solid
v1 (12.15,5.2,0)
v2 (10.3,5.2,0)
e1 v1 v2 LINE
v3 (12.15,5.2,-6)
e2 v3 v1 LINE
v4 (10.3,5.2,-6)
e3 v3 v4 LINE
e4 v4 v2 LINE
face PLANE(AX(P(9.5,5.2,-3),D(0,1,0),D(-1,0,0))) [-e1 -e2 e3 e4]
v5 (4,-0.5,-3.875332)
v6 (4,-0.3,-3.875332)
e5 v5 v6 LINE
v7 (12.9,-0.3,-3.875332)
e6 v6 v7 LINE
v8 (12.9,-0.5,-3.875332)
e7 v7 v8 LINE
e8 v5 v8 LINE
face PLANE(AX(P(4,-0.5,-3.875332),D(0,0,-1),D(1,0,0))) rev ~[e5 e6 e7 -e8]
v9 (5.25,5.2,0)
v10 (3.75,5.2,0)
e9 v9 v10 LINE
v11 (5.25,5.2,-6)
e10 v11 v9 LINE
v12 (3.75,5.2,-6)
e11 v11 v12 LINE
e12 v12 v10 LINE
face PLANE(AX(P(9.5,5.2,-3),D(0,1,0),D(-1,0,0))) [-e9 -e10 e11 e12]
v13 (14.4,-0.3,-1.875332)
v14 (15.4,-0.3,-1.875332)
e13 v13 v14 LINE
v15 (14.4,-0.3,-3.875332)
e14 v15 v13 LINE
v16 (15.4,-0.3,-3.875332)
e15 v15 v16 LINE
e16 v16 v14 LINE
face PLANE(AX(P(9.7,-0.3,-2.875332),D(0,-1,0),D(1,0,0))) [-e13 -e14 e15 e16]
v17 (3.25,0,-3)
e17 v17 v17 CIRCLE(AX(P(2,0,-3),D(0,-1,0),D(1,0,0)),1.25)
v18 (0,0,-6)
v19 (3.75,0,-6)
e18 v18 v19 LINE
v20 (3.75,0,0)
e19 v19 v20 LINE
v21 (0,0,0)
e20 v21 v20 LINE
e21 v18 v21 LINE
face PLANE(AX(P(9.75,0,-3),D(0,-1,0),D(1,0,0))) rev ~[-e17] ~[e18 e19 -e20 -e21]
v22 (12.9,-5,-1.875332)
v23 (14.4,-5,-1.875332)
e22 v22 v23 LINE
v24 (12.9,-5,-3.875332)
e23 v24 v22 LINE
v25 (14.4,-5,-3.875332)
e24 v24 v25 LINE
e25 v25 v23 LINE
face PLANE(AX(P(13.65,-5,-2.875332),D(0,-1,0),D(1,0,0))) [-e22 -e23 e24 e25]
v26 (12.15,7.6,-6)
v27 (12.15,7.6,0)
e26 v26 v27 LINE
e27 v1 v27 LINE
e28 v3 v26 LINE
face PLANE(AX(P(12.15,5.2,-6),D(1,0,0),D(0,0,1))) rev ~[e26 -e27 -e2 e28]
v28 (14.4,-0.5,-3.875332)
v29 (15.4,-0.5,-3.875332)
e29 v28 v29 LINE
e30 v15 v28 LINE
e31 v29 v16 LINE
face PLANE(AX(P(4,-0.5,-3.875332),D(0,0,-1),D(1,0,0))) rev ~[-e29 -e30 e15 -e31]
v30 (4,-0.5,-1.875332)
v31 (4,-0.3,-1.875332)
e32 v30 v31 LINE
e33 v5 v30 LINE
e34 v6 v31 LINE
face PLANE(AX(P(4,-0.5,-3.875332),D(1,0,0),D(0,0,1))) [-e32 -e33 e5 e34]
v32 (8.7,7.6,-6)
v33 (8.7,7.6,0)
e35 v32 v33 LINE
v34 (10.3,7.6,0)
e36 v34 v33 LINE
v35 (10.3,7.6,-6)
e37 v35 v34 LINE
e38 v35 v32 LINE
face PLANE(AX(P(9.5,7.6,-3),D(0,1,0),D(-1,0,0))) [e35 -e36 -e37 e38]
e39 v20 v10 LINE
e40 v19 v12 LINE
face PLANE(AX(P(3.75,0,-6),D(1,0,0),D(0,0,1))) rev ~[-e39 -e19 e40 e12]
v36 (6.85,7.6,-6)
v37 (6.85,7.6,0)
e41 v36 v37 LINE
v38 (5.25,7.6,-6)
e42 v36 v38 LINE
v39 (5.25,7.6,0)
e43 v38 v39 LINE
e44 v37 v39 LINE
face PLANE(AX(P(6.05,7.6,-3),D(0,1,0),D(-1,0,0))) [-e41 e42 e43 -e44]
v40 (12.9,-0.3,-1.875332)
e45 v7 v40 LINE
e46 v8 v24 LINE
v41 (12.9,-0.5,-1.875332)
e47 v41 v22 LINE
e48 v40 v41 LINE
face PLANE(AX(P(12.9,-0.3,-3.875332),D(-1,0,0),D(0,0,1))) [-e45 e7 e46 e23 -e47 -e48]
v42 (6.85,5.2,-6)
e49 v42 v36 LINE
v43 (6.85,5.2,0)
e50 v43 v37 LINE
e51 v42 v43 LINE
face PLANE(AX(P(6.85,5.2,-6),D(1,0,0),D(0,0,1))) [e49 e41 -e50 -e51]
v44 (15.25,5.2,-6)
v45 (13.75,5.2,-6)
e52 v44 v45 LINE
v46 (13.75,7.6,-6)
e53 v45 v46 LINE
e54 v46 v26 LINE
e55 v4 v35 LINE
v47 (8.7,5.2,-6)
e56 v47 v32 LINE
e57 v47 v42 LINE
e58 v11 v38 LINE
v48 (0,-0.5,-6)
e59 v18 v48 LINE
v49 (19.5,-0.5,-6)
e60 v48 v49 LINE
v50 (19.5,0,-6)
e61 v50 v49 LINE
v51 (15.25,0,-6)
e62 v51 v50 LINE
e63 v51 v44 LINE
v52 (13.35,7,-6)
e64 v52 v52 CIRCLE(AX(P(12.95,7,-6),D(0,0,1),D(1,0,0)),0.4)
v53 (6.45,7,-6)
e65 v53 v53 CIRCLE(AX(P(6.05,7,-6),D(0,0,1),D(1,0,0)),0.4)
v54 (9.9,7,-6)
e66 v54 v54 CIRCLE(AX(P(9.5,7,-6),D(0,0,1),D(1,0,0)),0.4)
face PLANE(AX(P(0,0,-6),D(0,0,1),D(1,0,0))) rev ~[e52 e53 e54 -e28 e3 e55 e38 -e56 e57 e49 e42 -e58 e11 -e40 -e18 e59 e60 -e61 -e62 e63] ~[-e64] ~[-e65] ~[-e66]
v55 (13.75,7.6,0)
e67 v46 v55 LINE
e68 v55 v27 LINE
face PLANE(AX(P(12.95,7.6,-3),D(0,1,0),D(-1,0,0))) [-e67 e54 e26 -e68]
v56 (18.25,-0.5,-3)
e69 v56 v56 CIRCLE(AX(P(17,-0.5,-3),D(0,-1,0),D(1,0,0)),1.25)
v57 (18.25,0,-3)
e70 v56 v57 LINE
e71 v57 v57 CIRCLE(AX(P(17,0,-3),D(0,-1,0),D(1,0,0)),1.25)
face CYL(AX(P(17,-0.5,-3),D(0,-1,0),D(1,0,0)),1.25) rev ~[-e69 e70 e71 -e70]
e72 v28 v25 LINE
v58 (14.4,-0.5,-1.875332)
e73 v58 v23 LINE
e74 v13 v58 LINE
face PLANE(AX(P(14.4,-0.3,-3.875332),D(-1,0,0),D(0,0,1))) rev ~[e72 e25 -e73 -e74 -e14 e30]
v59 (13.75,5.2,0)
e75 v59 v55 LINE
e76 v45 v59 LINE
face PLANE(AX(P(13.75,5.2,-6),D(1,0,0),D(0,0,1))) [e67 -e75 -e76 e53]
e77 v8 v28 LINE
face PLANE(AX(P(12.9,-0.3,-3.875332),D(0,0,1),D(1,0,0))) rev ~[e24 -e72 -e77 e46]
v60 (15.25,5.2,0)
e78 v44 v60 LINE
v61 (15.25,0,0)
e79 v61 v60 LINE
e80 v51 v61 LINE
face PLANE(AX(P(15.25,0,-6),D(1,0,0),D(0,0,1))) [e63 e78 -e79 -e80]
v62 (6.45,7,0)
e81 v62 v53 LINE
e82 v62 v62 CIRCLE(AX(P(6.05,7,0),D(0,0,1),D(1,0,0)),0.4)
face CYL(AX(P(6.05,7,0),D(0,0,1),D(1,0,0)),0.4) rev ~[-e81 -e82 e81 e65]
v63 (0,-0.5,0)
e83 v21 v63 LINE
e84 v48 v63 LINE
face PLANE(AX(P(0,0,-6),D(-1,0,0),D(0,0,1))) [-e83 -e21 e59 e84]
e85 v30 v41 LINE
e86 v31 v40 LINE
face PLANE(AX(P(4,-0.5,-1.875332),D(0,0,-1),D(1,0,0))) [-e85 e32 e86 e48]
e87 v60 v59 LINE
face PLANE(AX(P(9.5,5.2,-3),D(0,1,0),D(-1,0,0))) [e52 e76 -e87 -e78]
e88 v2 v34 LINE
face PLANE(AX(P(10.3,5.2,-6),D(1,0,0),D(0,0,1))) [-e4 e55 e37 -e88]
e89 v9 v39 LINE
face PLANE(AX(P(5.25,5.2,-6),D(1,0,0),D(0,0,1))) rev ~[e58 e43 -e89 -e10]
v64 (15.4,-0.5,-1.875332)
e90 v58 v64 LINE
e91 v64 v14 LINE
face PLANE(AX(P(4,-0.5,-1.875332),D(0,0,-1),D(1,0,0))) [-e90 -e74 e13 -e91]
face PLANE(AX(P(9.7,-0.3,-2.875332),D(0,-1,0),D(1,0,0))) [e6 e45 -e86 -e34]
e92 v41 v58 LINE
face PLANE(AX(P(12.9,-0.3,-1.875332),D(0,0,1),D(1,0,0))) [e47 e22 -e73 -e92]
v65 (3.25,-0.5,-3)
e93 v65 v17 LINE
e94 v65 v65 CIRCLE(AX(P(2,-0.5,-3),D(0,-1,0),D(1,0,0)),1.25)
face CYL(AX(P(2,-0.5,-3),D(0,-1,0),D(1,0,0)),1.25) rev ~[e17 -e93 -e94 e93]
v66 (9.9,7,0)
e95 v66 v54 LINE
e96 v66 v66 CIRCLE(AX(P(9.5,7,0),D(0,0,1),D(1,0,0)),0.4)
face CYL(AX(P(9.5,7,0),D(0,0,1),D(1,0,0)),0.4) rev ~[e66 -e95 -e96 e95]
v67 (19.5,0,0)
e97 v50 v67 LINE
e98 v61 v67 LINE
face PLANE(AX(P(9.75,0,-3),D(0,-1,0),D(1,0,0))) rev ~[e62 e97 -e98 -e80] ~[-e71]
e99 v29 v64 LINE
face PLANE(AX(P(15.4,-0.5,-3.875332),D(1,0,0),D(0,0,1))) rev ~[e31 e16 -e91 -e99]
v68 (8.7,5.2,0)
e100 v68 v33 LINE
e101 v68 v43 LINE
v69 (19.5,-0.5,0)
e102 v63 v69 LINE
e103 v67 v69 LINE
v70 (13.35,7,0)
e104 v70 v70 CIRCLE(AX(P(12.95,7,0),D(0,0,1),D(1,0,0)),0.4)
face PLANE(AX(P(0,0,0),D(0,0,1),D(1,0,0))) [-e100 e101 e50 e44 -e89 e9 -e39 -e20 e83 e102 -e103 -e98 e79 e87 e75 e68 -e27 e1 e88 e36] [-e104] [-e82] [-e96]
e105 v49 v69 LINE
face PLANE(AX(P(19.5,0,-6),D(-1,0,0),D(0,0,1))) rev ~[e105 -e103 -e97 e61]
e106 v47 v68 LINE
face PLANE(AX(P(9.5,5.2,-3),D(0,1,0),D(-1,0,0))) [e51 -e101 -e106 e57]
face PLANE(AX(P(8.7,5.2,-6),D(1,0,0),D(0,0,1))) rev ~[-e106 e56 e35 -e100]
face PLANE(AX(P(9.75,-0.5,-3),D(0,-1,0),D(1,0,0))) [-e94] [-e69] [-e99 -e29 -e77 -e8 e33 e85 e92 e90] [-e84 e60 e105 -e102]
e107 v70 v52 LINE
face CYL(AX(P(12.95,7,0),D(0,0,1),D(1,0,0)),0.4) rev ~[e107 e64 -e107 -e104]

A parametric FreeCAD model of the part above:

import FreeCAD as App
import Part
import Sketcher
Q = App.Units.Quantity

doc = App.newDocument("Part")
body = doc.addObject("PartDesign::Body", "Body")

sketch1 = body.newObject("Sketcher::SketchObject", "Sketch")
sketch1.AttachmentSupport = (doc.getObject("XZ_Plane"), [""])
sketch1.MapMode = "FlatFace"
sketch1.addGeometry([
    Part.LineSegment(App.Vector(0, 0, 0), App.Vector(0, -6, 0)),
    Part.LineSegment(App.Vector(0, -6, 0), App.Vector(20, -6, 0)),
    Part.LineSegment(App.Vector(20, -6, 0), App.Vector(20, 0, 0)),
    Part.LineSegment(App.Vector(20, 0, 0), App.Vector(0, 0, 0)),
], False)
sketch1.addConstraint([
    Sketcher.Constraint("Coincident", 0, 2, 1, 1),
    Sketcher.Constraint("Coincident", 1, 2, 2, 1),
    Sketcher.Constraint("Coincident", 2, 2, 3, 1),
    Sketcher.Constraint("Coincident", 3, 2, 0, 1),
    Sketcher.Constraint("Vertical", 0),
    Sketcher.Constraint("Horizontal", 1),
    Sketcher.Constraint("Vertical", 2),
    Sketcher.Constraint("Horizontal", 3),
    Sketcher.Constraint("Coincident", 3, 2, -1, 1),
    Sketcher.Constraint("DistanceY", 0, 2, 0, 1, Q("6 mm")),
    Sketcher.Constraint("DistanceX", 1, 1, 1, 2, Q("19.5 mm")),
])
pad1 = body.newObject("PartDesign::Pad", "Pad")
pad1.Profile = sketch1
pad1.Length = 0.5

sketch2 = body.newObject("Sketcher::SketchObject", "Sketch001")
sketch2.AttachmentSupport = (doc.getObject("XZ_Plane"), [""])
sketch2.MapMode = "FlatFace"
sketch2.AttachmentOffset = App.Placement(App.Vector(0, 0, 0.5), App.Rotation())
sketch2.addGeometry([
    Part.Circle(App.Vector(2, -3, 0), App.Vector(0, 0, 1), 1.2),
    Part.Circle(App.Vector(17, -3, 0), App.Vector(0, 0, 1), 1.2),
], False)
sketch2.addConstraint([
    Sketcher.Constraint("Equal", 0, 1),
    Sketcher.Constraint("Horizontal", 0, 3, 1, 3),
    Sketcher.Constraint("Diameter", 0, Q("2.5 mm")),
    Sketcher.Constraint("DistanceX", -1, 1, 0, 3, Q("2 mm")),
    Sketcher.Constraint("DistanceY", 0, 3, -1, 1, Q("3 mm")),
    Sketcher.Constraint("DistanceX", -1, 1, 1, 3, Q("17 mm")),
])
pocket1 = body.newObject("PartDesign::Pocket", "Pocket")
pocket1.Profile = sketch2
pocket1.Length = 3

sketch3 = body.newObject("Sketcher::SketchObject", "Sketch002")
sketch3.AttachmentSupport = (doc.getObject("XZ_Plane"), [""])
sketch3.MapMode = "FlatFace"
sketch3.AttachmentOffset = App.Placement(App.Vector(0, 0, 0.5), App.Rotation())
sketch3.addGeometry([
    Part.LineSegment(App.Vector(4, -1.9, 0), App.Vector(4, -3.9, 0)),
    Part.LineSegment(App.Vector(4, -3.9, 0), App.Vector(15.4, -3.9, 0)),
    Part.LineSegment(App.Vector(15.4, -3.9, 0), App.Vector(15.4, -1.9, 0)),
    Part.LineSegment(App.Vector(15.4, -1.9, 0), App.Vector(4, -1.9, 0)),
], False)
sketch3.addConstraint([
    Sketcher.Constraint("Coincident", 0, 2, 1, 1),
    Sketcher.Constraint("Coincident", 1, 2, 2, 1),
    Sketcher.Constraint("Coincident", 2, 2, 3, 1),
    Sketcher.Constraint("Coincident", 3, 2, 0, 1),
    Sketcher.Constraint("Vertical", 0),
    Sketcher.Constraint("Horizontal", 1),
    Sketcher.Constraint("Vertical", 2),
    Sketcher.Constraint("Horizontal", 3),
    Sketcher.Constraint("DistanceY", 0, 2, 0, 1, Q("2 mm")),
    Sketcher.Constraint("DistanceX", 1, 1, 1, 2, Q("11.4 mm")),
    Sketcher.Constraint("DistanceX", -1, 1, 0, 2, Q("4 mm")),
    Sketcher.Constraint("DistanceY", 0, 2, -1, 1, Q("3.875332 mm")),
])
pocket2 = body.newObject("PartDesign::Pocket", "Pocket001")
pocket2.Profile = sketch3
pocket2.Length = 0.2

sketch4 = body.newObject("Sketcher::SketchObject", "Sketch003")
sketch4.AttachmentSupport = (doc.getObject("XZ_Plane"), [""])
sketch4.MapMode = "FlatFace"
sketch4.AttachmentOffset = App.Placement(App.Vector(0, 0, 0.3), App.Rotation())
sketch4.addGeometry([
    Part.LineSegment(App.Vector(12.9, -1.9, 0), App.Vector(12.9, -3.9, 0)),
    Part.LineSegment(App.Vector(12.9, -3.9, 0), App.Vector(14.4, -3.9, 0)),
    Part.LineSegment(App.Vector(14.4, -3.9, 0), App.Vector(14.4, -1.9, 0)),
    Part.LineSegment(App.Vector(14.4, -1.9, 0), App.Vector(12.9, -1.9, 0)),
], False)
sketch4.addConstraint([
    Sketcher.Constraint("Coincident", 0, 2, 1, 1),
    Sketcher.Constraint("Coincident", 1, 2, 2, 1),
    Sketcher.Constraint("Coincident", 2, 2, 3, 1),
    Sketcher.Constraint("Coincident", 3, 2, 0, 1),
    Sketcher.Constraint("Vertical", 0),
    Sketcher.Constraint("Horizontal", 1),
    Sketcher.Constraint("Vertical", 2),
    Sketcher.Constraint("Horizontal", 3),
    Sketcher.Constraint("DistanceY", 0, 2, 0, 1, Q("2 mm")),
    Sketcher.Constraint("DistanceX", 1, 1, 1, 2, Q("1.5 mm")),
    Sketcher.Constraint("DistanceX", -1, 1, 0, 2, Q("12.9 mm")),
    Sketcher.Constraint("DistanceY", 0, 2, -1, 1, Q("3.875332 mm")),
])
pad2 = body.newObject("PartDesign::Pad", "Pad001")
pad2.Profile = sketch4
pad2.Length = 4.7

sketch5 = body.newObject("Sketcher::SketchObject", "Sketch004")
sketch5.AttachmentSupport = (doc.getObject("XZ_Plane"), [""])
sketch5.MapMode = "FlatFace"
sketch5.addGeometry([
    Part.LineSegment(App.Vector(15, 0, 0), App.Vector(15, -6, 0)),
    Part.LineSegment(App.Vector(15, -6, 0), App.Vector(4, -6, 0)),
    Part.LineSegment(App.Vector(4, -6, 0), App.Vector(4, 0, 0)),
    Part.LineSegment(App.Vector(4, 0, 0), App.Vector(15, 0, 0)),
], False)
sketch5.addConstraint([
    Sketcher.Constraint("Coincident", 0, 2, 1, 1),
    Sketcher.Constraint("Coincident", 1, 2, 2, 1),
    Sketcher.Constraint("Coincident", 2, 2, 3, 1),
    Sketcher.Constraint("Coincident", 3, 2, 0, 1),
    Sketcher.Constraint("Vertical", 0),
    Sketcher.Constraint("Horizontal", 1),
    Sketcher.Constraint("Vertical", 2),
    Sketcher.Constraint("Horizontal", 3),
    Sketcher.Constraint("PointOnObject", 2, 2, -1),
    Sketcher.Constraint("DistanceY", 0, 2, 0, 1, Q("6 mm")),
    Sketcher.Constraint("DistanceX", 1, 2, 1, 1, Q("11.5 mm")),
    Sketcher.Constraint("DistanceX", -1, 1, 0, 2, Q("15.25 mm")),
])
pad3 = body.newObject("PartDesign::Pad", "Pad002")
pad3.Profile = sketch5
pad3.Length = 5.2
pad3.Reversed = True

sketch6 = body.newObject("Sketcher::SketchObject", "Sketch005")
sketch6.AttachmentSupport = (doc.getObject("XZ_Plane"), [""])
sketch6.MapMode = "FlatFace"
sketch6.AttachmentOffset = App.Placement(App.Vector(0, 0, -5.2), App.Rotation())
sketch6.addGeometry([
    Part.LineSegment(App.Vector(13.8, 0, 0), App.Vector(13.8, -6, 0)),
    Part.LineSegment(App.Vector(13.8, -6, 0), App.Vector(12.2, -6, 0)),
    Part.LineSegment(App.Vector(12.2, -6, 0), App.Vector(12.2, 0, 0)),
    Part.LineSegment(App.Vector(12.2, 0, 0), App.Vector(13.8, 0, 0)),
    Part.LineSegment(App.Vector(10.3, 0, 0), App.Vector(10.3, -6, 0)),
    Part.LineSegment(App.Vector(10.3, -6, 0), App.Vector(8.7, -6, 0)),
    Part.LineSegment(App.Vector(8.7, -6, 0), App.Vector(8.7, 0, 0)),
    Part.LineSegment(App.Vector(8.7, 0, 0), App.Vector(10.3, 0, 0)),
    Part.LineSegment(App.Vector(6.8, 0, 0), App.Vector(6.8, -6, 0)),
    Part.LineSegment(App.Vector(6.8, -6, 0), App.Vector(5.2, -6, 0)),
    Part.LineSegment(App.Vector(5.2, -6, 0), App.Vector(5.2, 0, 0)),
    Part.LineSegment(App.Vector(5.2, 0, 0), App.Vector(6.8, 0, 0)),
], False)
sketch6.addConstraint([
    Sketcher.Constraint("Coincident", 0, 2, 1, 1),
    Sketcher.Constraint("Coincident", 1, 2, 2, 1),
    Sketcher.Constraint("Coincident", 2, 2, 3, 1),
    Sketcher.Constraint("Coincident", 3, 2, 0, 1),
    Sketcher.Constraint("Coincident", 4, 2, 5, 1),
    Sketcher.Constraint("Coincident", 5, 2, 6, 1),
    Sketcher.Constraint("Coincident", 6, 2, 7, 1),
    Sketcher.Constraint("Coincident", 7, 2, 4, 1),
    Sketcher.Constraint("Coincident", 8, 2, 9, 1),
    Sketcher.Constraint("Coincident", 9, 2, 10, 1),
    Sketcher.Constraint("Coincident", 10, 2, 11, 1),
    Sketcher.Constraint("Coincident", 11, 2, 8, 1),
    Sketcher.Constraint("Vertical", 0),
    Sketcher.Constraint("Horizontal", 1),
    Sketcher.Constraint("Vertical", 2),
    Sketcher.Constraint("Horizontal", 3),
    Sketcher.Constraint("Vertical", 4),
    Sketcher.Constraint("Horizontal", 5),
    Sketcher.Constraint("Vertical", 6),
    Sketcher.Constraint("Horizontal", 7),
    Sketcher.Constraint("Vertical", 8),
    Sketcher.Constraint("Horizontal", 9),
    Sketcher.Constraint("Vertical", 10),
    Sketcher.Constraint("Horizontal", 11),
    Sketcher.Constraint("PointOnObject", 2, 2, -1),
    Sketcher.Constraint("PointOnObject", 6, 2, -1),
    Sketcher.Constraint("PointOnObject", 10, 2, -1),
    Sketcher.Constraint("Horizontal", 1, 2, 4, 2),
    Sketcher.Constraint("Horizontal", 5, 2, 8, 2),
    Sketcher.Constraint("Equal", 3, 5),
    Sketcher.Constraint("Equal", 7, 9),
    Sketcher.Constraint("DistanceY", 0, 2, 0, 1, Q("6 mm")),
    Sketcher.Constraint("DistanceX", 1, 2, 1, 1, Q("1.6 mm")),
    Sketcher.Constraint("DistanceX", -1, 1, 4, 2, Q("10.3 mm")),
    Sketcher.Constraint("DistanceX", 8, 2, 1, 2, Q("5.3 mm")),
    Sketcher.Constraint("DistanceX", -1, 1, 0, 2, Q("13.75 mm")),
])
pad4 = body.newObject("PartDesign::Pad", "Pad003")
pad4.Profile = sketch6
pad4.Length = 2.4
pad4.Reversed = True

sketch7 = body.newObject("Sketcher::SketchObject", "Sketch006")
sketch7.AttachmentSupport = (doc.getObject("XY_Plane"), [""])
sketch7.MapMode = "FlatFace"
sketch7.addGeometry([
    Part.Circle(App.Vector(12.95, 7, 0), App.Vector(0, 0, 1), 0.4),
    Part.Circle(App.Vector(9.5, 7, 0), App.Vector(0, 0, 1), 0.4),
    Part.Circle(App.Vector(6.05, 7, 0), App.Vector(0, 0, 1), 0.4),
], False)
sketch7.addConstraint([
    Sketcher.Constraint("Equal", 0, 1),
    Sketcher.Constraint("Equal", 1, 2),
    Sketcher.Constraint("Horizontal", 0, 3, 1, 3),
    Sketcher.Constraint("Horizontal", 1, 3, 2, 3),
    Sketcher.Constraint("Diameter", 0, Q("0.8 mm")),
    Sketcher.Constraint("DistanceY", -1, 1, 0, 3, Q("7 mm")),
    Sketcher.Constraint("DistanceX", -1, 1, 1, 3, Q("9.5 mm")),
    Sketcher.Constraint("DistanceX", 2, 3, 0, 3, Q("6.9 mm")),
    Sketcher.Constraint("DistanceX", -1, 1, 0, 3, Q("12.95 mm")),
])
pocket3 = body.newObject("PartDesign::Pocket", "Pocket002")
pocket3.Profile = sketch7
pocket3.Length = 6

doc.recompute()
